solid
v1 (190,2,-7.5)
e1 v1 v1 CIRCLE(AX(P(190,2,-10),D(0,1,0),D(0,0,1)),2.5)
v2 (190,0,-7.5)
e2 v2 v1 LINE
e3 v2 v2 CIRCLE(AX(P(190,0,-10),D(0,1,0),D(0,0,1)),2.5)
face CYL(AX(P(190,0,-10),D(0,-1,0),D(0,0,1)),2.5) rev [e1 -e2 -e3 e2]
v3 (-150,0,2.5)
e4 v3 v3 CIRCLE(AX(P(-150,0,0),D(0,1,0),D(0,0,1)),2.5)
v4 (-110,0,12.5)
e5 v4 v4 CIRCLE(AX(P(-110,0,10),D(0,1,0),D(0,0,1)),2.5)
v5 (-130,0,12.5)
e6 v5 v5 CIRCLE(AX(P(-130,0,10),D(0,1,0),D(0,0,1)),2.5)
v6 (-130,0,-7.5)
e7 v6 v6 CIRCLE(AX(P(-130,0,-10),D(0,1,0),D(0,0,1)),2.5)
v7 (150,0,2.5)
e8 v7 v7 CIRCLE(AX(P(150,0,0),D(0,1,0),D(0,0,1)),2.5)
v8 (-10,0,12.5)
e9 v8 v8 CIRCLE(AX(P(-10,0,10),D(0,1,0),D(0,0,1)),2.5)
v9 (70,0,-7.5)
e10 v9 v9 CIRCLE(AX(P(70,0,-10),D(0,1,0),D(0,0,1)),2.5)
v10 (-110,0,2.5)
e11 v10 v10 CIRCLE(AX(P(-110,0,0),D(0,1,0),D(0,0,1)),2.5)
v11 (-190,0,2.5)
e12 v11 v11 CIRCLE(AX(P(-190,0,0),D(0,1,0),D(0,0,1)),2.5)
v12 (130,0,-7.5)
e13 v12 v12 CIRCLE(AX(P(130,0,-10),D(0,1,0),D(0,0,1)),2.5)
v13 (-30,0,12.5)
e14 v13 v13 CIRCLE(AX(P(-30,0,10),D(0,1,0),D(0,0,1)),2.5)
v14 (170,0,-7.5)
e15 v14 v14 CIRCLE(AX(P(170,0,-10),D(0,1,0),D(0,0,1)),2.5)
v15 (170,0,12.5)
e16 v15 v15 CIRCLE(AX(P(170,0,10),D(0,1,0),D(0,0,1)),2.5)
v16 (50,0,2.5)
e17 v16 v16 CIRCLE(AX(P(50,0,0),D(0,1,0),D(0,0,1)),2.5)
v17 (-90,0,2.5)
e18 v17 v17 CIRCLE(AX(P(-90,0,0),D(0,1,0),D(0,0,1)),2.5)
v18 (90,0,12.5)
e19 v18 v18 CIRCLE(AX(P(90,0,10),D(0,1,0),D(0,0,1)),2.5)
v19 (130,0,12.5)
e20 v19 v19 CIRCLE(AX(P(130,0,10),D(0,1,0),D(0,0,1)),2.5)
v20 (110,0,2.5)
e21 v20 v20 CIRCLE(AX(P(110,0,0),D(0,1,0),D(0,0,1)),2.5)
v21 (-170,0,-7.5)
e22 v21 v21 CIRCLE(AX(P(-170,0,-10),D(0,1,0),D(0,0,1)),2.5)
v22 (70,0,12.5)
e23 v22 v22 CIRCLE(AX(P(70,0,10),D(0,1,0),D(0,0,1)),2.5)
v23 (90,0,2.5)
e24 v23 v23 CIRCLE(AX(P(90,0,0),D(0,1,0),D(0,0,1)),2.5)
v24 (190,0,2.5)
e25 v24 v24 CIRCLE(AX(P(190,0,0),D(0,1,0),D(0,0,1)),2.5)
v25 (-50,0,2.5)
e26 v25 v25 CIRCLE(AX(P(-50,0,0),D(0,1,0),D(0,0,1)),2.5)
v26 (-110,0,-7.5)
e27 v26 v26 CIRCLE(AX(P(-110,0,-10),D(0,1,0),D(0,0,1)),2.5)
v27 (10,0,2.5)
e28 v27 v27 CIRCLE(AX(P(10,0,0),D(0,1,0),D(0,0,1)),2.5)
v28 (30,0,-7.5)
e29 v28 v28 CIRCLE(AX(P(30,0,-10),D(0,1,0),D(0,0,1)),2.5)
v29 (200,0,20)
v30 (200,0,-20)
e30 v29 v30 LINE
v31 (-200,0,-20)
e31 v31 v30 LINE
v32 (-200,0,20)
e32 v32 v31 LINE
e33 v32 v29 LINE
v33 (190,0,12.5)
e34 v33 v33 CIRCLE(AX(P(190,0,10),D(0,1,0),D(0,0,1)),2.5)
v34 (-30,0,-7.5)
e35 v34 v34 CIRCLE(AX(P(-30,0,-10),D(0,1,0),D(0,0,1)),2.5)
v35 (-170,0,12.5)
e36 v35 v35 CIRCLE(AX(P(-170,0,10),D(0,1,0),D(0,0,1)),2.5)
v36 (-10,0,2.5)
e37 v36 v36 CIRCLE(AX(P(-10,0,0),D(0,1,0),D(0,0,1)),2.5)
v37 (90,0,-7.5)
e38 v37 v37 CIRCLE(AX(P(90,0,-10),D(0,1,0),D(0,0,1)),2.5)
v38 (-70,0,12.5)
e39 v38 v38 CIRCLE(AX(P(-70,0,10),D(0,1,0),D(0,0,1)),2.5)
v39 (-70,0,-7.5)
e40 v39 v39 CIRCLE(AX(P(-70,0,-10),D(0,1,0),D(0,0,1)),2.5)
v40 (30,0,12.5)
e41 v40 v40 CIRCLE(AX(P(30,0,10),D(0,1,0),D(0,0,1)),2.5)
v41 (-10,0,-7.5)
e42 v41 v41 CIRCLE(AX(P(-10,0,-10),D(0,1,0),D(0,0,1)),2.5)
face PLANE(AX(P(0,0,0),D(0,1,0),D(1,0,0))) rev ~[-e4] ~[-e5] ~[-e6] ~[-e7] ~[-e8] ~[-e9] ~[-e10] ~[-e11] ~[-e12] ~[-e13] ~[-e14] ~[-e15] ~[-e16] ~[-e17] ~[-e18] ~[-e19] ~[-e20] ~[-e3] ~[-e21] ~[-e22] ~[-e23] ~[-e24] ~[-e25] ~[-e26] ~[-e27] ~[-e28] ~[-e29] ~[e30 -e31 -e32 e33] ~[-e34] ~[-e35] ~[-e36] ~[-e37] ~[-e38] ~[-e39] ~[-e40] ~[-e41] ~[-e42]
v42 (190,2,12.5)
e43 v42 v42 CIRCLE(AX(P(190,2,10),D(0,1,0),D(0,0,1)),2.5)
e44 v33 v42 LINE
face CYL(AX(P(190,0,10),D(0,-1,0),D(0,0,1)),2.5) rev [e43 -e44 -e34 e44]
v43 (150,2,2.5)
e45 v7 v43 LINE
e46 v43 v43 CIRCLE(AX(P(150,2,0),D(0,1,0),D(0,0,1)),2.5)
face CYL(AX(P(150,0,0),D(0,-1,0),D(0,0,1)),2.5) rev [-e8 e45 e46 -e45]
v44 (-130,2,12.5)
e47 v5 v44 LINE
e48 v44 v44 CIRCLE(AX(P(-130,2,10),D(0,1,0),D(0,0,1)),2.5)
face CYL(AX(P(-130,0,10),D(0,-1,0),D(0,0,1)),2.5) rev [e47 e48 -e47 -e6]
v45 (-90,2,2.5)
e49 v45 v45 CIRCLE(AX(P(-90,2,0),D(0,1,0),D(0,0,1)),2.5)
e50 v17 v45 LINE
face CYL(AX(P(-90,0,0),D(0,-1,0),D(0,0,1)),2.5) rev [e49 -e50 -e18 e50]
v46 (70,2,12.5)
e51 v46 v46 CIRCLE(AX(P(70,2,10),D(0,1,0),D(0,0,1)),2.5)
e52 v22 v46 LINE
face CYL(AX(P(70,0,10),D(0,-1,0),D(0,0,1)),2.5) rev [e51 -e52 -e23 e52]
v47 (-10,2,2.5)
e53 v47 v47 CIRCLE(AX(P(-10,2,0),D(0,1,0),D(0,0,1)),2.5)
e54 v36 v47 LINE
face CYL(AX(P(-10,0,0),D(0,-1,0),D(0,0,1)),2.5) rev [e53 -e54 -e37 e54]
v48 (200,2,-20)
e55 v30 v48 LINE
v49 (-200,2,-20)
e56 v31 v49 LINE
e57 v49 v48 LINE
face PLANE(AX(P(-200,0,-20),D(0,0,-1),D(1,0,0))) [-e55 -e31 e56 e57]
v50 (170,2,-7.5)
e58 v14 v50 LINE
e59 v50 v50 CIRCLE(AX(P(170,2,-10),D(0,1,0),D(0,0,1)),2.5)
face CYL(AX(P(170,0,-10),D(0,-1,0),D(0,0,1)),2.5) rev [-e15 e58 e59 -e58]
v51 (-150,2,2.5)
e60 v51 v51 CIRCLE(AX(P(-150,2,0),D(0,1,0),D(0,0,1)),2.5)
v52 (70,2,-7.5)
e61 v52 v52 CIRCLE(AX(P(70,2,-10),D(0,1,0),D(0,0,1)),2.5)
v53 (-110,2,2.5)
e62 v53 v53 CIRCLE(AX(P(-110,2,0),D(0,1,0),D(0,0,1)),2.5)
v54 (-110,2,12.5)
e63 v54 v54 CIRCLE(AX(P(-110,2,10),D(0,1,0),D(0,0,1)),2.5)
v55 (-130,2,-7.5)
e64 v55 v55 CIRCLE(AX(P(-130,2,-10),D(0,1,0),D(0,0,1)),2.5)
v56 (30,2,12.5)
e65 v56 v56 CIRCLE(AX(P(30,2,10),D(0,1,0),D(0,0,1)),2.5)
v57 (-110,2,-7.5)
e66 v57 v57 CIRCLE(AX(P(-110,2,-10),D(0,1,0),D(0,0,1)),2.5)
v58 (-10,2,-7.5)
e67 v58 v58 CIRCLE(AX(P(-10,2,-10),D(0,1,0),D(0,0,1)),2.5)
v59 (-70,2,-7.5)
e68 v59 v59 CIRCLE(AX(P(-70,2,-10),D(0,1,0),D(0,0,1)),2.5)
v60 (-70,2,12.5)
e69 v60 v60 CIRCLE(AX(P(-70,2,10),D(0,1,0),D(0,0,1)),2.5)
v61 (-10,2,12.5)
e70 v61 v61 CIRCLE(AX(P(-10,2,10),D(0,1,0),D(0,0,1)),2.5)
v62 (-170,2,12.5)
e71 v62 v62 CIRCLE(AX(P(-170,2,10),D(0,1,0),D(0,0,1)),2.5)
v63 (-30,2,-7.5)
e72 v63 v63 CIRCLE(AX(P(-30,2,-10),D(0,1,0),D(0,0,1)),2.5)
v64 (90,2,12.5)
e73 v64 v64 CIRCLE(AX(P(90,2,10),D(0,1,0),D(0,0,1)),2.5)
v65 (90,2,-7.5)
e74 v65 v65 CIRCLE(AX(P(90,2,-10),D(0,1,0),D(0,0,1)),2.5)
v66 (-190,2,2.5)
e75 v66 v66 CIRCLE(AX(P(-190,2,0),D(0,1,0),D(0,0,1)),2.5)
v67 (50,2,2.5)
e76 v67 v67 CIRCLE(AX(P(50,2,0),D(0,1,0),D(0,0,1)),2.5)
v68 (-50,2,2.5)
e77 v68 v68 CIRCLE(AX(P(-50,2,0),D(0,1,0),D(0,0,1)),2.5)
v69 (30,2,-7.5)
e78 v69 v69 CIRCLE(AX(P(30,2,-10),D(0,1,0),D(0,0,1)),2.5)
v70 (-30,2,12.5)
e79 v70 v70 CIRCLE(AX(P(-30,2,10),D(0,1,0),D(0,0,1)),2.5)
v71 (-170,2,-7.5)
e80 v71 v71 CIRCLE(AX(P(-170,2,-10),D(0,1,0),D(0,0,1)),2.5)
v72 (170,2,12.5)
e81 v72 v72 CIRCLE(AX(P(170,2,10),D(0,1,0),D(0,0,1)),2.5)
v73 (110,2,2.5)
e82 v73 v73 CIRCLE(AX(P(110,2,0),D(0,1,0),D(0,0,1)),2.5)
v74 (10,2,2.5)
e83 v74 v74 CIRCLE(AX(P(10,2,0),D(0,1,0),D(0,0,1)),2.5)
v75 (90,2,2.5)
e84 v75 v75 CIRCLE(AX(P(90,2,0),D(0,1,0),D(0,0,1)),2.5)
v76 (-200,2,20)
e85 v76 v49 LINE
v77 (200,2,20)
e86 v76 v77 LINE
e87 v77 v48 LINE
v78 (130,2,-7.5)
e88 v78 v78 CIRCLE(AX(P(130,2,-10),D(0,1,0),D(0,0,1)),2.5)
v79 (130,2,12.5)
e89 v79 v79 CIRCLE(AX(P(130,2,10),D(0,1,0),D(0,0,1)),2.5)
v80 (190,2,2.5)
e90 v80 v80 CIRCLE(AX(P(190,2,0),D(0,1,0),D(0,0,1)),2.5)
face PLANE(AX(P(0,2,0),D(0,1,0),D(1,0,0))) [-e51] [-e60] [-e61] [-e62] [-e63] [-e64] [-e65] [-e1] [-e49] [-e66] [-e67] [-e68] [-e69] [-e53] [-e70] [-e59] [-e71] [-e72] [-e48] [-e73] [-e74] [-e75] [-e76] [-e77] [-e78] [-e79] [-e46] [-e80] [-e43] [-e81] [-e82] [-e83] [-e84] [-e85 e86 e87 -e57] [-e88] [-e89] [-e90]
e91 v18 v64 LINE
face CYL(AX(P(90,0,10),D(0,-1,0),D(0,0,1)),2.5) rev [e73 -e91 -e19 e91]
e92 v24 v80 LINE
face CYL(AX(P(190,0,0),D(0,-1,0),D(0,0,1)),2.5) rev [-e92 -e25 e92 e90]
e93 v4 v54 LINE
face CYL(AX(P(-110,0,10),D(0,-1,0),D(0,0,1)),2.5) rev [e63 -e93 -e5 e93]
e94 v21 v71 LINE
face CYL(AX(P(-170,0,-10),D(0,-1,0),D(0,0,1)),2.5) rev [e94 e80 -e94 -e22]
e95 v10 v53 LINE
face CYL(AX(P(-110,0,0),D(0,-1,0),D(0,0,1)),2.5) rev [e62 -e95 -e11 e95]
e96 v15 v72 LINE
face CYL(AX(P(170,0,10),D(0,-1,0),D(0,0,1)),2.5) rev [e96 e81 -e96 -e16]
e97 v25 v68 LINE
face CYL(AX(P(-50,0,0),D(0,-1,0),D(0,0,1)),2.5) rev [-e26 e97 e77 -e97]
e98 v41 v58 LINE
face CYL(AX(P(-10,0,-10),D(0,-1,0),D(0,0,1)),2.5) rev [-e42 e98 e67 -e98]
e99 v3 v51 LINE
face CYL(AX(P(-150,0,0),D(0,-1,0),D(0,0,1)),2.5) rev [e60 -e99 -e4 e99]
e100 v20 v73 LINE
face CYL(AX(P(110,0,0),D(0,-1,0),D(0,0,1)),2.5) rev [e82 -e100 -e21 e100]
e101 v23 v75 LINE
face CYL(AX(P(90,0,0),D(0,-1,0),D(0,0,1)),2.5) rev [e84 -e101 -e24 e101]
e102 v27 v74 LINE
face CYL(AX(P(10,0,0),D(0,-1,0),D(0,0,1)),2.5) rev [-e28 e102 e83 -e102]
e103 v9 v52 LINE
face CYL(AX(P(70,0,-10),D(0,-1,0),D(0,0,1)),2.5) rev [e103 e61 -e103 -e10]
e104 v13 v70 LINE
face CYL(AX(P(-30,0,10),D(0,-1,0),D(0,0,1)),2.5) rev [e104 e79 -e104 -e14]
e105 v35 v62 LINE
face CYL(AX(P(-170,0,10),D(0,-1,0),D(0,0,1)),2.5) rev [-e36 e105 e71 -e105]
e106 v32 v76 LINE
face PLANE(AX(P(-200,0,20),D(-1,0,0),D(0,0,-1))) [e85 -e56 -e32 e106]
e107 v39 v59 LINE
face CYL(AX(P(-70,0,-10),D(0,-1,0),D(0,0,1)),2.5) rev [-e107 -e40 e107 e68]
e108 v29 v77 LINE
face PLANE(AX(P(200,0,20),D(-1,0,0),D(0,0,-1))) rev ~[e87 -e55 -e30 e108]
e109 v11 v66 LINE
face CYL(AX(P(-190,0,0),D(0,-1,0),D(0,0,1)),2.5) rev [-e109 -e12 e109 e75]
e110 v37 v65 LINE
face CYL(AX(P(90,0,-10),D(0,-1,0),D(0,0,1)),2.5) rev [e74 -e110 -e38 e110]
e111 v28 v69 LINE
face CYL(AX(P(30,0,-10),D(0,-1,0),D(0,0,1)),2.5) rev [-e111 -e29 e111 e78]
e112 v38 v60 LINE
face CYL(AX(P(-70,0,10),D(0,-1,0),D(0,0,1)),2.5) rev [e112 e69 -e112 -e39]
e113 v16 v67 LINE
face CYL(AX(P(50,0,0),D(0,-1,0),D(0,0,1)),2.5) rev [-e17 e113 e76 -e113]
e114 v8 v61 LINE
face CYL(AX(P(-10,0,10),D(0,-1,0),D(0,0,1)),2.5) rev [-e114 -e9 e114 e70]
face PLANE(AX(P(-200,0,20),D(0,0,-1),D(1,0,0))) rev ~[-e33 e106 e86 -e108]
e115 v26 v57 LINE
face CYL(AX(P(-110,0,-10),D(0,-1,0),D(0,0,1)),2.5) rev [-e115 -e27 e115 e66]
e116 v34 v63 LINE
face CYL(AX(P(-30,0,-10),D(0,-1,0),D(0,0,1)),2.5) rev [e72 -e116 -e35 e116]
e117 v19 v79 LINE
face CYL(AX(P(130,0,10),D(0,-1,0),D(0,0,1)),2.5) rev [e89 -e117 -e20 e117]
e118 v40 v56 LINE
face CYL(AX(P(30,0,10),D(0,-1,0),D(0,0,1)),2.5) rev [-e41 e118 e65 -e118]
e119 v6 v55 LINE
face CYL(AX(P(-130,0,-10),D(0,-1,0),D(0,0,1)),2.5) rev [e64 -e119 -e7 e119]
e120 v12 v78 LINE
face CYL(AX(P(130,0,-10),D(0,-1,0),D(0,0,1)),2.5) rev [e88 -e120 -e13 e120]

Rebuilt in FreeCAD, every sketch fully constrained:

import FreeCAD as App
import Part
import Sketcher

doc = App.newDocument("Part")
params = doc.addObject("Spreadsheet::Sheet", "Params")
for row, (alias, value) in enumerate([
    ("sketch1_diameter", "5 mm"),
    ("sketch1_width", "400 mm"),
    ("sketch1_height", "40 mm"),
    ("pad1_length", "2 mm"),
], start=1):
    params.set(f"A{row}", alias)
    params.set(f"B{row}", "=" + value)
    params.setAlias(f"B{row}", alias)

body = doc.addObject("PartDesign::Body", "Body")

# Sketch on XZ plane
sketch1 = doc.addObject("Sketcher::SketchObject", "Sketch")
body.addObject(sketch1)
sketch1.AttachmentSupport = (doc.XZ_Plane, [""])
sketch1.MapMode = "FlatFace"
sketch1.addGeometry(Part.LineSegment(App.Vector(-200, -20, 0), App.Vector(-200, 20, 0)), False)
sketch1.addGeometry(Part.LineSegment(App.Vector(-200, 20, 0), App.Vector(200, 20, 0)), False)
sketch1.addGeometry(Part.LineSegment(App.Vector(200, 20, 0), App.Vector(200, -20, 0)), False)
sketch1.addGeometry(Part.LineSegment(App.Vector(200, -20, 0), App.Vector(-200, -20, 0)), False)
sketch1.addGeometry(Part.Circle(App.Vector(-170, 10, 0), App.Vector(0, 0, 1), 2.5), False)
sketch1.addGeometry(Part.Circle(App.Vector(-130, 10, 0), App.Vector(0, 0, 1), 2.5), False)
sketch1.addGeometry(Part.Circle(App.Vector(-110, 10, 0), App.Vector(0, 0, 1), 2.5), False)
sketch1.addGeometry(Part.Circle(App.Vector(-70, 10, 0), App.Vector(0, 0, 1), 2.5), False)
sketch1.addGeometry(Part.Circle(App.Vector(-30, 10, 0), App.Vector(0, 0, 1), 2.5), False)
sketch1.addGeometry(Part.Circle(App.Vector(-10, 10, 0), App.Vector(0, 0, 1), 2.5), False)
sketch1.addGeometry(Part.Circle(App.Vector(30, 10, 0), App.Vector(0, 0, 1), 2.5), False)
sketch1.addGeometry(Part.Circle(App.Vector(70, 10, 0), App.Vector(0, 0, 1), 2.5), False)
sketch1.addGeometry(Part.Circle(App.Vector(90, 10, 0), App.Vector(0, 0, 1), 2.5), False)
sketch1.addGeometry(Part.Circle(App.Vector(130, 10, 0), App.Vector(0, 0, 1), 2.5), False)
sketch1.addGeometry(Part.Circle(App.Vector(170, 10, 0), App.Vector(0, 0, 1), 2.5), False)
sketch1.addGeometry(Part.Circle(App.Vector(190, 10, 0), App.Vector(0, 0, 1), 2.5), False)
sketch1.addGeometry(Part.Circle(App.Vector(-190, 0, 0), App.Vector(0, 0, 1), 2.5), False)
sketch1.addGeometry(Part.Circle(App.Vector(-150, 0, 0), App.Vector(0, 0, 1), 2.5), False)
sketch1.addGeometry(Part.Circle(App.Vector(-110, 0, 0), App.Vector(0, 0, 1), 2.5), False)
sketch1.addGeometry(Part.Circle(App.Vector(-90, 0, 0), App.Vector(0, 0, 1), 2.5), False)
sketch1.addGeometry(Part.Circle(App.Vector(-50, 0, 0), App.Vector(0, 0, 1), 2.5), False)
sketch1.addGeometry(Part.Circle(App.Vector(-10, 0, 0), App.Vector(0, 0, 1), 2.5), False)
sketch1.addGeometry(Part.Circle(App.Vector(-170, -10, 0), App.Vector(0, 0, 1), 2.5), False)
sketch1.addGeometry(Part.Circle(App.Vector(-130, -10, 0), App.Vector(0, 0, 1), 2.5), False)
sketch1.addGeometry(Part.Circle(App.Vector(-110, -10, 0), App.Vector(0, 0, 1), 2.5), False)
sketch1.addGeometry(Part.Circle(App.Vector(-70, -10, 0), App.Vector(0, 0, 1), 2.5), False)
sketch1.addGeometry(Part.Circle(App.Vector(-30, -10, 0), App.Vector(0, 0, 1), 2.5), False)
sketch1.addGeometry(Part.Circle(App.Vector(-10, -10, 0), App.Vector(0, 0, 1), 2.5), False)
sketch1.addGeometry(Part.Circle(App.Vector(10, 0, 0), App.Vector(0, 0, 1), 2.5), False)
sketch1.addGeometry(Part.Circle(App.Vector(50, 0, 0), App.Vector(0, 0, 1), 2.5), False)
sketch1.addGeometry(Part.Circle(App.Vector(90, 0, 0), App.Vector(0, 0, 1), 2.5), False)
sketch1.addGeometry(Part.Circle(App.Vector(110, 0, 0), App.Vector(0, 0, 1), 2.5), False)
sketch1.addGeometry(Part.Circle(App.Vector(150, 0, 0), App.Vector(0, 0, 1), 2.5), False)
sketch1.addGeometry(Part.Circle(App.Vector(190, 0, 0), App.Vector(0, 0, 1), 2.5), False)
sketch1.addGeometry(Part.Circle(App.Vector(30, -10, 0), App.Vector(0, 0, 1), 2.5), False)
sketch1.addGeometry(Part.Circle(App.Vector(70, -10, 0), App.Vector(0, 0, 1), 2.5), False)
sketch1.addGeometry(Part.Circle(App.Vector(90, -10, 0), App.Vector(0, 0, 1), 2.5), False)
sketch1.addGeometry(Part.Circle(App.Vector(130, -10, 0), App.Vector(0, 0, 1), 2.5), False)
sketch1.addGeometry(Part.Circle(App.Vector(170, -10, 0), App.Vector(0, 0, 1), 2.5), False)
sketch1.addGeometry(Part.Circle(App.Vector(190, -10, 0), App.Vector(0, 0, 1), 2.5), False)
sketch1.addConstraint(Sketcher.Constraint("Coincident", 0, 2, 1, 1))
sketch1.addConstraint(Sketcher.Constraint("Coincident", 1, 2, 2, 1))
sketch1.addConstraint(Sketcher.Constraint("Coincident", 2, 2, 3, 1))
sketch1.addConstraint(Sketcher.Constraint("Coincident", 3, 2, 0, 1))
sketch1.addConstraint(Sketcher.Constraint("Vertical", 0))
sketch1.addConstraint(Sketcher.Constraint("Horizontal", 1))
sketch1.addConstraint(Sketcher.Constraint("Vertical", 2))
sketch1.addConstraint(Sketcher.Constraint("Horizontal", 3))
sketch1.addConstraint(Sketcher.Constraint("Equal", 4, 5))
sketch1.addConstraint(Sketcher.Constraint("Equal", 5, 6))
sketch1.addConstraint(Sketcher.Constraint("Equal", 6, 7))
sketch1.addConstraint(Sketcher.Constraint("Equal", 7, 8))
sketch1.addConstraint(Sketcher.Constraint("Equal", 8, 9))
sketch1.addConstraint(Sketcher.Constraint("Equal", 9, 10))
sketch1.addConstraint(Sketcher.Constraint("Equal", 10, 11))
sketch1.addConstraint(Sketcher.Constraint("Equal", 11, 12))
sketch1.addConstraint(Sketcher.Constraint("Equal", 12, 13))
sketch1.addConstraint(Sketcher.Constraint("Equal", 13, 14))
sketch1.addConstraint(Sketcher.Constraint("Equal", 14, 15))
sketch1.addConstraint(Sketcher.Constraint("Equal", 15, 16))
sketch1.addConstraint(Sketcher.Constraint("Equal", 16, 17))
sketch1.addConstraint(Sketcher.Constraint("Equal", 17, 18))
sketch1.addConstraint(Sketcher.Constraint("Equal", 18, 19))
sketch1.addConstraint(Sketcher.Constraint("Equal", 19, 20))
sketch1.addConstraint(Sketcher.Constraint("Equal", 20, 21))
sketch1.addConstraint(Sketcher.Constraint("Equal", 21, 22))
sketch1.addConstraint(Sketcher.Constraint("Equal", 22, 23))
sketch1.addConstraint(Sketcher.Constraint("Equal", 23, 24))
sketch1.addConstraint(Sketcher.Constraint("Equal", 24, 25))
sketch1.addConstraint(Sketcher.Constraint("Equal", 25, 26))
sketch1.addConstraint(Sketcher.Constraint("Equal", 26, 27))
sketch1.addConstraint(Sketcher.Constraint("Equal", 27, 28))
sketch1.addConstraint(Sketcher.Constraint("Equal", 28, 29))
sketch1.addConstraint(Sketcher.Constraint("Equal", 29, 30))
sketch1.addConstraint(Sketcher.Constraint("Equal", 30, 31))
sketch1.addConstraint(Sketcher.Constraint("Equal", 31, 32))
sketch1.addConstraint(Sketcher.Constraint("Equal", 32, 33))
sketch1.addConstraint(Sketcher.Constraint("Equal", 33, 34))
sketch1.addConstraint(Sketcher.Constraint("Equal", 34, 35))
sketch1.addConstraint(Sketcher.Constraint("Equal", 35, 36))
sketch1.addConstraint(Sketcher.Constraint("Equal", 36, 37))
sketch1.addConstraint(Sketcher.Constraint("Equal", 37, 38))
sketch1.addConstraint(Sketcher.Constraint("Equal", 38, 39))
sketch1.addConstraint(Sketcher.Constraint("Symmetric", 14, 3, 22, 3, -1, 1))
sketch1.addConstraint(Sketcher.Constraint("Symmetric", 13, 3, 23, 3, -1, 1))
sketch1.addConstraint(Sketcher.Constraint("Symmetric", 11, 3, 25, 3, -1, 1))
sketch1.addConstraint(Sketcher.Constraint("Symmetric", 10, 3, 26, 3, -1, 1))
sketch1.addConstraint(Sketcher.Constraint("Symmetric", 21, 3, 28, 3, -1, 1))
sketch1.addConstraint(Sketcher.Constraint("Symmetric", 20, 3, 29, 3, -1, 1))
sketch1.addConstraint(Sketcher.Constraint("Symmetric", 19, 3, 30, 3, -1, 1))
sketch1.addConstraint(Sketcher.Constraint("Symmetric", 18, 3, 31, 3, -1, 1))
sketch1.addConstraint(Sketcher.Constraint("Symmetric", 17, 3, 32, 3, -1, 1))
sketch1.addConstraint(Sketcher.Constraint("Symmetric", 16, 3, 33, 3, -1, 1))
sketch1.addConstraint(Sketcher.Constraint("Symmetric", 8, 3, 34, 3, -1, 1))
sketch1.addConstraint(Sketcher.Constraint("Symmetric", 7, 3, 35, 3, -1, 1))
sketch1.addConstraint(Sketcher.Constraint("Symmetric", 5, 3, 37, 3, -1, 1))
sketch1.addConstraint(Sketcher.Constraint("Symmetric", 4, 3, 38, 3, -1, 1))
sketch1.addConstraint(Sketcher.Constraint("Symmetric", 0, 2, 2, 2, -1, 1))
sketch1.addConstraint(Sketcher.Constraint("Symmetric", 8, 3, 10, 3, -2))
sketch1.addConstraint(Sketcher.Constraint("Symmetric", 7, 3, 11, 3, -2))
sketch1.addConstraint(Sketcher.Constraint("Symmetric", 5, 3, 13, 3, -2))
sketch1.addConstraint(Sketcher.Constraint("Symmetric", 4, 3, 14, 3, -2))
sketch1.addConstraint(Sketcher.Constraint("Symmetric", 6, 3, 24, 3, -1))
sketch1.addConstraint(Sketcher.Constraint("Symmetric", 9, 3, 27, 3, -1))
sketch1.addConstraint(Sketcher.Constraint("Symmetric", 12, 3, 36, 3, -1))
sketch1.addConstraint(Sketcher.Constraint("Symmetric", 15, 3, 39, 3, -1))
sketch1.addConstraint(Sketcher.Constraint("PointOnObject", 16, 3, -1))
sketch1.addConstraint(Sketcher.Constraint("PointOnObject", 17, 3, -1))
sketch1.addConstraint(Sketcher.Constraint("PointOnObject", 18, 3, -1))
sketch1.addConstraint(Sketcher.Constraint("PointOnObject", 19, 3, -1))
sketch1.addConstraint(Sketcher.Constraint("PointOnObject", 20, 3, -1))
sketch1.addConstraint(Sketcher.Constraint("PointOnObject", 21, 3, -1))
sketch1.addConstraint(Sketcher.Constraint("Horizontal", 4, 3, 5, 3))
sketch1.addConstraint(Sketcher.Constraint("Horizontal", 5, 3, 6, 3))
sketch1.addConstraint(Sketcher.Constraint("Horizontal", 6, 3, 7, 3))
sketch1.addConstraint(Sketcher.Constraint("Horizontal", 7, 3, 8, 3))
sketch1.addConstraint(Sketcher.Constraint("Horizontal", 8, 3, 9, 3))
sketch1.addConstraint(Sketcher.Constraint("Horizontal", 11, 3, 12, 3))
sketch1.addConstraint(Sketcher.Constraint("Horizontal", 14, 3, 15, 3))
sketch1.addConstraint(Sketcher.Constraint("Vertical", 6, 3, 18, 3))
sketch1.addConstraint(Sketcher.Constraint("Vertical", 9, 3, 21, 3))
sketch1.addConstraint(Sketcher.Constraint("Vertical", 12, 3, 30, 3))
sketch1.addConstraint(Sketcher.Constraint("Vertical", 15, 3, 33, 3))
sketch1.addConstraint(Sketcher.Constraint("Diameter", 4, 5.0))
sketch1.addConstraint(Sketcher.Constraint("DistanceX", 1, 1, 1, 2, 400.0))
sketch1.addConstraint(Sketcher.Constraint("DistanceY", 0, 1, 0, 2, 40.0))
sketch1.addConstraint(Sketcher.Constraint("DistanceX", 4, 3, -1, 1, 170.0))
sketch1.addConstraint(Sketcher.Constraint("DistanceY", -1, 1, 4, 3, 10.0))
sketch1.addConstraint(Sketcher.Constraint("DistanceX", 5, 3, -1, 1, 130.0))
sketch1.addConstraint(Sketcher.Constraint("DistanceX", 6, 3, -1, 1, 110.0))
sketch1.addConstraint(Sketcher.Constraint("DistanceX", 7, 3, -1, 1, 70.0))
sketch1.addConstraint(Sketcher.Constraint("DistanceX", 8, 3, -1, 1, 30.0))
sketch1.addConstraint(Sketcher.Constraint("DistanceX", 9, 3, -1, 1, 10.0))
sketch1.addConstraint(Sketcher.Constraint("DistanceX", -1, 1, 12, 3, 90.0))
sketch1.addConstraint(Sketcher.Constraint("DistanceX", -1, 1, 15, 3, 190.0))
sketch1.addConstraint(Sketcher.Constraint("DistanceX", 17, 3, -1, 1, 150.0))
sketch1.addConstraint(Sketcher.Constraint("DistanceX", 20, 3, -1, 1, 50.0))
sketch1.setExpression("Constraints[83]", "Params.sketch1_diameter")
sketch1.setExpression("Constraints[84]", "Params.sketch1_width")
sketch1.setExpression("Constraints[85]", "Params.sketch1_height")
pad1 = doc.addObject("PartDesign::Pad", "Pad")
body.addObject(pad1)
pad1.Profile = sketch1
pad1.setExpression("Length", "Params.pad1_length")
pad1.Reversed = True

doc.recompute()
